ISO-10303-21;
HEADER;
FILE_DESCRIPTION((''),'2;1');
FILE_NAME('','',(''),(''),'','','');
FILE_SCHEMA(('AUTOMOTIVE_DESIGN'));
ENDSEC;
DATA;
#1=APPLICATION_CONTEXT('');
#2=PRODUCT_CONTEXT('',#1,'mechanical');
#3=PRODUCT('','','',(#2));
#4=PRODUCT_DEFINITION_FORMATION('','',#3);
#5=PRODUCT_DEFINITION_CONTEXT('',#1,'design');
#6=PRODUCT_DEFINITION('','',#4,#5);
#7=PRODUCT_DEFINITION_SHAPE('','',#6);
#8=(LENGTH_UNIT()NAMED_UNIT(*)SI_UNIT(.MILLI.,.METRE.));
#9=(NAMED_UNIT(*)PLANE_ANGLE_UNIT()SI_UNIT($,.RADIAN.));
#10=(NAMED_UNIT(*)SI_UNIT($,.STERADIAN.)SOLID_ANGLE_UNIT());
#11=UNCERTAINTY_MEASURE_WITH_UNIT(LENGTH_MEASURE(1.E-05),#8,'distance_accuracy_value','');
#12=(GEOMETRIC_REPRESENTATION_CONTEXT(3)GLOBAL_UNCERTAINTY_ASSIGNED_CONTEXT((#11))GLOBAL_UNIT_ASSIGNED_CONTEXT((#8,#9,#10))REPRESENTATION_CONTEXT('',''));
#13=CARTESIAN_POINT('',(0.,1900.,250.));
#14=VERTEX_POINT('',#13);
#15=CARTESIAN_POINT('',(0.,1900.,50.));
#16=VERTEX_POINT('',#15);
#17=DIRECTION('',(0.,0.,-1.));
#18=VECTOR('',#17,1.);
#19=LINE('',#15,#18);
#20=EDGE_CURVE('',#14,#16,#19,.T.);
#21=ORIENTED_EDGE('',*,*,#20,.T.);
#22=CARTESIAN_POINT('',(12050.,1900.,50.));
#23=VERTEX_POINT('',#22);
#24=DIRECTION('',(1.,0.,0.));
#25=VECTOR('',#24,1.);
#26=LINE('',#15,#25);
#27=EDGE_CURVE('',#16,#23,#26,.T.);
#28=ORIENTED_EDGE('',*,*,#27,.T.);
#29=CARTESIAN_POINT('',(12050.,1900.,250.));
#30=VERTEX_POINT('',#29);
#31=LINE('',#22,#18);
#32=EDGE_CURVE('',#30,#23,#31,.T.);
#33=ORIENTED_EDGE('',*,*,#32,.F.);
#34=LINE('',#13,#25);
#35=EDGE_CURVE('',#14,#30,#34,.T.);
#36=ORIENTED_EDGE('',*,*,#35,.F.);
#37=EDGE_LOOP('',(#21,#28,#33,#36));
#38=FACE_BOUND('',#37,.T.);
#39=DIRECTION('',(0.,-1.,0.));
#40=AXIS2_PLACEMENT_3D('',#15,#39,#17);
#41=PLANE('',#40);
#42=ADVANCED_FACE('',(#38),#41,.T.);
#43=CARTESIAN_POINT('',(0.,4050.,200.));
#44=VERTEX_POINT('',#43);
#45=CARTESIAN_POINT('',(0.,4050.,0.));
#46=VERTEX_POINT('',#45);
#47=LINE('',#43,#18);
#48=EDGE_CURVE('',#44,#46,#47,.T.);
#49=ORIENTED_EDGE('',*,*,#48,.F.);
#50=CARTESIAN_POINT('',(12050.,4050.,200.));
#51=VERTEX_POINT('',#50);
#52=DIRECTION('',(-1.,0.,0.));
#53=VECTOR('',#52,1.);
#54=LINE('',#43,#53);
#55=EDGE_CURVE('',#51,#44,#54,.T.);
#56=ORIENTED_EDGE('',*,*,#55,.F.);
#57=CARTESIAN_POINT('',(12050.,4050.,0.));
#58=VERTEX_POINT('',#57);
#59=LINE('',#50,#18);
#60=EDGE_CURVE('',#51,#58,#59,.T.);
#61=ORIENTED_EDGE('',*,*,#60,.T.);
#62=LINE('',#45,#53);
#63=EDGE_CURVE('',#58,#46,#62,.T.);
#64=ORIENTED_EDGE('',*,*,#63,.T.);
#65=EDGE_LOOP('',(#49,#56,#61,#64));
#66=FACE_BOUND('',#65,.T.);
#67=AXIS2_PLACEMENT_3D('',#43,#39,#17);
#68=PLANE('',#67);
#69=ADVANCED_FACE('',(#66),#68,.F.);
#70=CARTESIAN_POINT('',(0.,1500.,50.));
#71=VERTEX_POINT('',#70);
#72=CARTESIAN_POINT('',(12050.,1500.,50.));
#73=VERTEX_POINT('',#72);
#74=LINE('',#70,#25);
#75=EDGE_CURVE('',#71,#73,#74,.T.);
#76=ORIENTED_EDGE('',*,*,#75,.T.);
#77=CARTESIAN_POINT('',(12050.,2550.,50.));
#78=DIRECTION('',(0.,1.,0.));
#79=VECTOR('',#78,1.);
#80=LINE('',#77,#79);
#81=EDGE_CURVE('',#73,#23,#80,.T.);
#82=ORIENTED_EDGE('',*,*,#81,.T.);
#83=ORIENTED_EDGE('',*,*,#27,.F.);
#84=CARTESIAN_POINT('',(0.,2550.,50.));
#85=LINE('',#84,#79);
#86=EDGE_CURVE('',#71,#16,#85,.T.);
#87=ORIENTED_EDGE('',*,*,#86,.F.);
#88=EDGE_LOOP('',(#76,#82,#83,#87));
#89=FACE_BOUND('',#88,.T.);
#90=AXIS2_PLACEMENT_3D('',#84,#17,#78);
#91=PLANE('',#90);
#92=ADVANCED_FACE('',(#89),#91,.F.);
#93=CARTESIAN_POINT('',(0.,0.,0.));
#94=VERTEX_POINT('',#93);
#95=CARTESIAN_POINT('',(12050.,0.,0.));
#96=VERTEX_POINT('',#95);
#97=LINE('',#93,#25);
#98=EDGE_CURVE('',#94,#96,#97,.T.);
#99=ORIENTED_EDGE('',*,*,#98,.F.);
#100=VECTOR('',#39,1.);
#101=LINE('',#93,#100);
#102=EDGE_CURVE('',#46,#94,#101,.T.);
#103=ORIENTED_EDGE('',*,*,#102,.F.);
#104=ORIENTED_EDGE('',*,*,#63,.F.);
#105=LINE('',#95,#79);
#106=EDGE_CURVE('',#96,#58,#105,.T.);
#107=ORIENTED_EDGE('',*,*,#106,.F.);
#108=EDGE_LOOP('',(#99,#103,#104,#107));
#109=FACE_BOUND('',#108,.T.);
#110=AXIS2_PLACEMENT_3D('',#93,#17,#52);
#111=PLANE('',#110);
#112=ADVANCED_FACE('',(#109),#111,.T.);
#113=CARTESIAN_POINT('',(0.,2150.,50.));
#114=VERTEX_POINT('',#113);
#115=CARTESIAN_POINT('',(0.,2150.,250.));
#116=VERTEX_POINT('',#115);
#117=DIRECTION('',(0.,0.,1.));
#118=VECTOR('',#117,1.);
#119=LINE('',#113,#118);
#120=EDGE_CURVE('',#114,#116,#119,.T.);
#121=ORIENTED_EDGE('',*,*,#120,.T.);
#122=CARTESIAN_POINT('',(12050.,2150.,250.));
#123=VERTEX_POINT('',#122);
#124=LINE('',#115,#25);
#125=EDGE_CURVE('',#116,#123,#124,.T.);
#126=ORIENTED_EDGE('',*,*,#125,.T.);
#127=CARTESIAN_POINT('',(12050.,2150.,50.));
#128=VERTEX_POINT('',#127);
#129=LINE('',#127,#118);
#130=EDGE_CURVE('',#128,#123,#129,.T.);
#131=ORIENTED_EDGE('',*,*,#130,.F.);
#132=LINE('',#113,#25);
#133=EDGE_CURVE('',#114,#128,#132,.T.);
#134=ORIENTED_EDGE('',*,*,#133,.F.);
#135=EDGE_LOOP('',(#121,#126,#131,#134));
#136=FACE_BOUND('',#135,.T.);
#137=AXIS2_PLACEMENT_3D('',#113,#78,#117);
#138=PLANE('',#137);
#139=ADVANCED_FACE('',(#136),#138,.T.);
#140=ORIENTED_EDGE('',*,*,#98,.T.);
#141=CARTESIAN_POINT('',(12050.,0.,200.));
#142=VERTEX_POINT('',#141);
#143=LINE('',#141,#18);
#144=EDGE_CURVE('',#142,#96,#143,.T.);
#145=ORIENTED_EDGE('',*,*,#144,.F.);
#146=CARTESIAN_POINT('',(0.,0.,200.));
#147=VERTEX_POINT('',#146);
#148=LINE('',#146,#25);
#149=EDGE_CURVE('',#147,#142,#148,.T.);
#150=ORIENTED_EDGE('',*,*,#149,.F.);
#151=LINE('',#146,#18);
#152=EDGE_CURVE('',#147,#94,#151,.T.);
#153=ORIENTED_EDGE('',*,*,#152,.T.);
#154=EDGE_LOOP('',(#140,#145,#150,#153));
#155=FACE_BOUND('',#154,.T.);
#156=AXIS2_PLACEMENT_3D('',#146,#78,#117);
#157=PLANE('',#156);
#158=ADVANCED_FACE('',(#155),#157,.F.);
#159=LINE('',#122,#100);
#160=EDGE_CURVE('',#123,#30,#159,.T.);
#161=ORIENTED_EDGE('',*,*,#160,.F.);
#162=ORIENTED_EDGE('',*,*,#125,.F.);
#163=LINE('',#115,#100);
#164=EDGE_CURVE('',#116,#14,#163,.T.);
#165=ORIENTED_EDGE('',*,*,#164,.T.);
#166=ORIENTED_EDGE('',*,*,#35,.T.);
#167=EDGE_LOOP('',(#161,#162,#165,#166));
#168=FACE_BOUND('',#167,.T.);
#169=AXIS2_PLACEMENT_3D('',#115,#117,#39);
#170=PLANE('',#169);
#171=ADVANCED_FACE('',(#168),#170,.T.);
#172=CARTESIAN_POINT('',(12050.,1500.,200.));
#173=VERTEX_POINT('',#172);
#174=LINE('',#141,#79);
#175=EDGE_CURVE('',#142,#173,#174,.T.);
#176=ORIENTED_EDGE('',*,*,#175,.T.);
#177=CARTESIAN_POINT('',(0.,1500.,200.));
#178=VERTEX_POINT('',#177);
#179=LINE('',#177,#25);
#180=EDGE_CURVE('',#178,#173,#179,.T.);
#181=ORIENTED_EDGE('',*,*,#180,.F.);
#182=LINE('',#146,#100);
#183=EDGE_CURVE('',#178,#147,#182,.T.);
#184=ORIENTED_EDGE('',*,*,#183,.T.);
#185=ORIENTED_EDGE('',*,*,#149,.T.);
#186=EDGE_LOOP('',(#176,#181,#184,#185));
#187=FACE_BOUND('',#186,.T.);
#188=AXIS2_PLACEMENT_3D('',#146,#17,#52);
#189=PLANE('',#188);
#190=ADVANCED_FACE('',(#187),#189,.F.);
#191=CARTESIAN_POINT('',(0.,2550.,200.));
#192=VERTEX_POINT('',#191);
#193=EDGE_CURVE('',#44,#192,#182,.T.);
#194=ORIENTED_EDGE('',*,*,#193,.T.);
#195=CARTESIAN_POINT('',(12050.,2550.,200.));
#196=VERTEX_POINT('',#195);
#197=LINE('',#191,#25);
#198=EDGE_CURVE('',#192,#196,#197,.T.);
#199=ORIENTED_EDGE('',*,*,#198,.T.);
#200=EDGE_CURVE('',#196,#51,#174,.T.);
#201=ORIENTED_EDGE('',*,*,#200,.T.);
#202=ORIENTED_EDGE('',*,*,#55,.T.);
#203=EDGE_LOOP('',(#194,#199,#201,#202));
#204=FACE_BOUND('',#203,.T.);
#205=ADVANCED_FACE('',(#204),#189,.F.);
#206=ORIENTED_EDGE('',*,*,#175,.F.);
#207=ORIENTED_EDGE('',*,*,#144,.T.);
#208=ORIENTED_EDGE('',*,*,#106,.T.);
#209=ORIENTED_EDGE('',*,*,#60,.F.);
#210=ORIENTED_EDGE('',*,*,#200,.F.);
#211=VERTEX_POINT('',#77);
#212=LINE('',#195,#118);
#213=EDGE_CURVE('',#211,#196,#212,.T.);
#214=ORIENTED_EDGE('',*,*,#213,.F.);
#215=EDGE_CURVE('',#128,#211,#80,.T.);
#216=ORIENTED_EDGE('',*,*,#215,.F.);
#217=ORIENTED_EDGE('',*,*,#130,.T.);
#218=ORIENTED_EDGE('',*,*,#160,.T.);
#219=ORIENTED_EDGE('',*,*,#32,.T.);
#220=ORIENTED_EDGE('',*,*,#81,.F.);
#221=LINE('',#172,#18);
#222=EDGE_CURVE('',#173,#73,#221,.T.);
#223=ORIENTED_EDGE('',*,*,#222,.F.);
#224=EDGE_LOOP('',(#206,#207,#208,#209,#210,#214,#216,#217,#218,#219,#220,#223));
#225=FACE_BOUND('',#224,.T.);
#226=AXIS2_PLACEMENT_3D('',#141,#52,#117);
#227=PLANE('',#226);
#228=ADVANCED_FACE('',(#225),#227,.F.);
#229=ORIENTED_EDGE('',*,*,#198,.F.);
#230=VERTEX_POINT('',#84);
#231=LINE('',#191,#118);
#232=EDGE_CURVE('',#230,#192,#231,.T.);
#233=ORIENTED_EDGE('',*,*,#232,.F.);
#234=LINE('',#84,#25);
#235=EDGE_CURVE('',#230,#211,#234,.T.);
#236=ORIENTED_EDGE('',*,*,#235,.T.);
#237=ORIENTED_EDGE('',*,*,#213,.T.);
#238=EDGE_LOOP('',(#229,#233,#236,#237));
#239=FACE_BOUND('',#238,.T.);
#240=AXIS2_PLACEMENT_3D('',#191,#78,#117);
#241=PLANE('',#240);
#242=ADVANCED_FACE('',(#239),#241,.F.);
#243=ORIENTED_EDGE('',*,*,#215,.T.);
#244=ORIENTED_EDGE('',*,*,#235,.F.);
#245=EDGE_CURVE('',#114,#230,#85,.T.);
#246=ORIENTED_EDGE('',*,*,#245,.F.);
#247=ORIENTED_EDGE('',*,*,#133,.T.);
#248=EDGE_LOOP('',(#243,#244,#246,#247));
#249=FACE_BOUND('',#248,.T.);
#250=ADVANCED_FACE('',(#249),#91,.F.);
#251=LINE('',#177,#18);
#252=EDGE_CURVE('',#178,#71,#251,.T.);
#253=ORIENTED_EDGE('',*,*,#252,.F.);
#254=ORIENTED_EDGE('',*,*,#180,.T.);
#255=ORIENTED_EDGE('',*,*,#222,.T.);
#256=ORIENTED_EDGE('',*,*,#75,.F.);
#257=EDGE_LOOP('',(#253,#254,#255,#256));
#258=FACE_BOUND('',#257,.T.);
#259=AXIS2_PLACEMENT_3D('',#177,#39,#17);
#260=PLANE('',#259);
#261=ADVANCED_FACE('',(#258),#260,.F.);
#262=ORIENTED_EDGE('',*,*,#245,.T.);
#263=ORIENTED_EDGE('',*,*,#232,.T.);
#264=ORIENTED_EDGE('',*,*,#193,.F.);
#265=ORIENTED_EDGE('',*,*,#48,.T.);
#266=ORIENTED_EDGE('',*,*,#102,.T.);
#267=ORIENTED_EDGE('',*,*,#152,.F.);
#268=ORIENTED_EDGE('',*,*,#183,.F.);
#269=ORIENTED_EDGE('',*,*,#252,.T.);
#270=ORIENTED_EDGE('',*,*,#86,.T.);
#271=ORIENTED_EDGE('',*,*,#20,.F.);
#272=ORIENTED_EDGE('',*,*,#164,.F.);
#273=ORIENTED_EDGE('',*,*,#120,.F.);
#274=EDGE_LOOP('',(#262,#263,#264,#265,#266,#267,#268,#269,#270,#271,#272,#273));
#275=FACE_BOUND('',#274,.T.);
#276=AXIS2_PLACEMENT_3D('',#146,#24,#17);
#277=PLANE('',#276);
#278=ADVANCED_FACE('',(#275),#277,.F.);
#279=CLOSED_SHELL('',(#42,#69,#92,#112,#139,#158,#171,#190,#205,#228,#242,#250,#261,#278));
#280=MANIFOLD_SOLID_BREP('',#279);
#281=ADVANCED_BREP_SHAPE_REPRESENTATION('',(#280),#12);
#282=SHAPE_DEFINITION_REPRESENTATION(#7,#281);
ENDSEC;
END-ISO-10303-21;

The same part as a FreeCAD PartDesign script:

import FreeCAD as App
import Part
import Sketcher
Q = App.Units.Quantity

doc = App.newDocument("Part")
params = doc.addObject("Spreadsheet::Sheet", "Params")
for row, (alias, value) in enumerate([
    ("sketch1_width", "12050 mm"),
    ("sketch1_height", "4050 mm"),
    ("pad1_length", "200 mm"),
    ("sketch2_width", "1050 mm"),
    ("sketch2_height", "150 mm"),
    ("sketch3_width", "250 mm"),
    ("sketch3_height", "200 mm"),
    ("pad2_length", "12050 mm"),
], start=1):
    params.set(f"A{row}", alias)
    params.set(f"B{row}", "=" + value)
    params.setAlias(f"B{row}", alias)

body = doc.addObject("PartDesign::Body", "Body")

# Sketch on XY plane
sketch1 = doc.addObject("Sketcher::SketchObject", "Sketch")
body.addObject(sketch1)
sketch1.AttachmentSupport = (doc.XY_Plane, [""])
sketch1.MapMode = "FlatFace"
sketch1.addGeometry(Part.LineSegment(App.Vector(0, 4050, 0), App.Vector(0, 0, 0)), False)
sketch1.addGeometry(Part.LineSegment(App.Vector(0, 0, 0), App.Vector(12050, 0, 0)), False)
sketch1.addGeometry(Part.LineSegment(App.Vector(12050, 0, 0), App.Vector(12050, 4050, 0)), False)
sketch1.addGeometry(Part.LineSegment(App.Vector(12050, 4050, 0), App.Vector(0, 4050, 0)), False)
sketch1.addConstraint(Sketcher.Constraint("Coincident", 0, 2, 1, 1))
sketch1.addConstraint(Sketcher.Constraint("Coincident", 1, 2, 2, 1))
sketch1.addConstraint(Sketcher.Constraint("Coincident", 2, 2, 3, 1))
sketch1.addConstraint(Sketcher.Constraint("Coincident", 3, 2, 0, 1))
sketch1.addConstraint(Sketcher.Constraint("Vertical", 0))
sketch1.addConstraint(Sketcher.Constraint("Horizontal", 1))
sketch1.addConstraint(Sketcher.Constraint("Vertical", 2))
sketch1.addConstraint(Sketcher.Constraint("Horizontal", 3))
sketch1.addConstraint(Sketcher.Constraint("Coincident", 0, 2, -1, 1))
sketch1.addConstraint(Sketcher.Constraint("DistanceX", 1, 1, 1, 2, Q("12050 mm")))
sketch1.addConstraint(Sketcher.Constraint("DistanceY", 0, 2, 0, 1, Q("4050 mm")))
sketch1.setExpression("Constraints[9]", "Params.sketch1_width")
sketch1.setExpression("Constraints[10]", "Params.sketch1_height")
pad1 = doc.addObject("PartDesign::Pad", "Pad")
body.addObject(pad1)
pad1.Profile = sketch1
pad1.setExpression("Length", "Params.pad1_length")

# Sketch on YZ plane
sketch2 = doc.addObject("Sketcher::SketchObject", "Sketch001")
body.addObject(sketch2)
sketch2.AttachmentSupport = (doc.YZ_Plane, [""])
sketch2.MapMode = "FlatFace"
sketch2.AttachmentOffset = App.Placement(App.Vector(0, 0, 12050), App.Rotation())
sketch2.addGeometry(Part.LineSegment(App.Vector(2550, 200, 0), App.Vector(1500, 200, 0)), False)
sketch2.addGeometry(Part.LineSegment(App.Vector(1500, 200, 0), App.Vector(1500, 50, 0)), False)
sketch2.addGeometry(Part.LineSegment(App.Vector(1500, 50, 0), App.Vector(2550, 50, 0)), False)
sketch2.addGeometry(Part.LineSegment(App.Vector(2550, 50, 0), App.Vector(2550, 200, 0)), False)
sketch2.addConstraint(Sketcher.Constraint("Coincident", 0, 2, 1, 1))
sketch2.addConstraint(Sketcher.Constraint("Coincident", 1, 2, 2, 1))
sketch2.addConstraint(Sketcher.Constraint("Coincident", 2, 2, 3, 1))
sketch2.addConstraint(Sketcher.Constraint("Coincident", 3, 2, 0, 1))
sketch2.addConstraint(Sketcher.Constraint("Horizontal", 0))
sketch2.addConstraint(Sketcher.Constraint("Vertical", 1))
sketch2.addConstraint(Sketcher.Constraint("Horizontal", 2))
sketch2.addConstraint(Sketcher.Constraint("Vertical", 3))
sketch2.addConstraint(Sketcher.Constraint("DistanceX", 0, 2, 0, 1, Q("1050 mm")))
sketch2.addConstraint(Sketcher.Constraint("DistanceY", 1, 2, 1, 1, Q("150 mm")))
sketch2.addConstraint(Sketcher.Constraint("DistanceX", -1, 1, 0, 2, Q("1500 mm")))
sketch2.addConstraint(Sketcher.Constraint("DistanceY", -1, 1, 0, 2, Q("200 mm")))
sketch2.setExpression("Constraints[8]", "Params.sketch2_width")
sketch2.setExpression("Constraints[9]", "Params.sketch2_height")
pocket1 = doc.addObject("PartDesign::Pocket", "Pocket")
body.addObject(pocket1)
pocket1.Profile = sketch2
pocket1.Type = "ThroughAll"

# Sketch on YZ plane
sketch3 = doc.addObject("Sketcher::SketchObject", "Sketch002")
body.addObject(sketch3)
sketch3.AttachmentSupport = (doc.YZ_Plane, [""])
sketch3.MapMode = "FlatFace"
sketch3.AttachmentOffset = App.Placement(App.Vector(0, 0, 12050), App.Rotation())
sketch3.addGeometry(Part.LineSegment(App.Vector(2150, 250, 0), App.Vector(1900, 250, 0)), False)
sketch3.addGeometry(Part.LineSegment(App.Vector(1900, 250, 0), App.Vector(1900, 50, 0)), False)
sketch3.addGeometry(Part.LineSegment(App.Vector(1900, 50, 0), App.Vector(2150, 50, 0)), False)
sketch3.addGeometry(Part.LineSegment(App.Vector(2150, 50, 0), App.Vector(2150, 250, 0)), False)
sketch3.addConstraint(Sketcher.Constraint("Coincident", 0, 2, 1, 1))
sketch3.addConstraint(Sketcher.Constraint("Coincident", 1, 2, 2, 1))
sketch3.addConstraint(Sketcher.Constraint("Coincident", 2, 2, 3, 1))
sketch3.addConstraint(Sketcher.Constraint("Coincident", 3, 2, 0, 1))
sketch3.addConstraint(Sketcher.Constraint("Horizontal", 0))
sketch3.addConstraint(Sketcher.Constraint("Vertical", 1))
sketch3.addConstraint(Sketcher.Constraint("Horizontal", 2))
sketch3.addConstraint(Sketcher.Constraint("Vertical", 3))
sketch3.addConstraint(Sketcher.Constraint("DistanceX", 0, 2, 0, 1, Q("250 mm")))
sketch3.addConstraint(Sketcher.Constraint("DistanceY", 1, 2, 1, 1, Q("200 mm")))
sketch3.addConstraint(Sketcher.Constraint("DistanceX", -1, 1, 0, 2, Q("1900 mm")))
sketch3.addConstraint(Sketcher.Constraint("DistanceY", -1, 1, 0, 2, Q("250 mm")))
sketch3.setExpression("Constraints[8]", "Params.sketch3_width")
sketch3.setExpression("Constraints[9]", "Params.sketch3_height")
pad2 = doc.addObject("PartDesign::Pad", "Pad001")
body.addObject(pad2)
pad2.Profile = sketch3
pad2.setExpression("Length", "Params.pad2_length")
pad2.Reversed = True

doc.recompute()
